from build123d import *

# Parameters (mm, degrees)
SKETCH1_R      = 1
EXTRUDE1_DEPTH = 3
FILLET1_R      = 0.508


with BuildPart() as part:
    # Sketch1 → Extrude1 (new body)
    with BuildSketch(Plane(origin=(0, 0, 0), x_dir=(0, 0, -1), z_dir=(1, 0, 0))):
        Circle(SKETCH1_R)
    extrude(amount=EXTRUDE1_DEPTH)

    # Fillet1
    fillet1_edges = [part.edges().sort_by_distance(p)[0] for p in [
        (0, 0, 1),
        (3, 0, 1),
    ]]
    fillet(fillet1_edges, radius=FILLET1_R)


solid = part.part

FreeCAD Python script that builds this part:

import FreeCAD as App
import Part
import Sketcher
from FreeCAD import Vector


def edges_at(feature, points):
    """Names of the edges that pass closest to the given points."""
    edges = feature.Shape.Edges
    near = lambda p: min(range(len(edges)), key=lambda i: edges[i].distToShape(Part.Vertex(*p))[0])
    return sorted({f"Edge{near(p) + 1}" for p in points})

doc = App.newDocument("Part")
body = doc.addObject("PartDesign::Body", "Body")

sketch1 = doc.addObject("Sketcher::SketchObject", "Sketch")
body.addObject(sketch1)
sketch1.AttachmentSupport = (doc.YZ_Plane, [""])
sketch1.MapMode = "FlatFace"
sketch1.addGeometry(Part.Circle(Vector(0, 0, 0), Vector(0, 0, 1), 1), False)
sketch1.addConstraint(Sketcher.Constraint("Coincident", 0, 3, -1, 1))
sketch1.addConstraint(Sketcher.Constraint("Diameter", 0, 2.0))
pad1 = doc.addObject("PartDesign::Pad", "Pad")
body.addObject(pad1)
pad1.Profile = sketch1
pad1.Length = 3
doc.recompute()

fillet = doc.addObject("PartDesign::Fillet", "Fillet")
body.addObject(fillet)
fillet.Base = (pad1, edges_at(pad1, [(0, 0, 1), (3, 0, 1)]))
fillet.Radius = 0.508

doc.recompute()
